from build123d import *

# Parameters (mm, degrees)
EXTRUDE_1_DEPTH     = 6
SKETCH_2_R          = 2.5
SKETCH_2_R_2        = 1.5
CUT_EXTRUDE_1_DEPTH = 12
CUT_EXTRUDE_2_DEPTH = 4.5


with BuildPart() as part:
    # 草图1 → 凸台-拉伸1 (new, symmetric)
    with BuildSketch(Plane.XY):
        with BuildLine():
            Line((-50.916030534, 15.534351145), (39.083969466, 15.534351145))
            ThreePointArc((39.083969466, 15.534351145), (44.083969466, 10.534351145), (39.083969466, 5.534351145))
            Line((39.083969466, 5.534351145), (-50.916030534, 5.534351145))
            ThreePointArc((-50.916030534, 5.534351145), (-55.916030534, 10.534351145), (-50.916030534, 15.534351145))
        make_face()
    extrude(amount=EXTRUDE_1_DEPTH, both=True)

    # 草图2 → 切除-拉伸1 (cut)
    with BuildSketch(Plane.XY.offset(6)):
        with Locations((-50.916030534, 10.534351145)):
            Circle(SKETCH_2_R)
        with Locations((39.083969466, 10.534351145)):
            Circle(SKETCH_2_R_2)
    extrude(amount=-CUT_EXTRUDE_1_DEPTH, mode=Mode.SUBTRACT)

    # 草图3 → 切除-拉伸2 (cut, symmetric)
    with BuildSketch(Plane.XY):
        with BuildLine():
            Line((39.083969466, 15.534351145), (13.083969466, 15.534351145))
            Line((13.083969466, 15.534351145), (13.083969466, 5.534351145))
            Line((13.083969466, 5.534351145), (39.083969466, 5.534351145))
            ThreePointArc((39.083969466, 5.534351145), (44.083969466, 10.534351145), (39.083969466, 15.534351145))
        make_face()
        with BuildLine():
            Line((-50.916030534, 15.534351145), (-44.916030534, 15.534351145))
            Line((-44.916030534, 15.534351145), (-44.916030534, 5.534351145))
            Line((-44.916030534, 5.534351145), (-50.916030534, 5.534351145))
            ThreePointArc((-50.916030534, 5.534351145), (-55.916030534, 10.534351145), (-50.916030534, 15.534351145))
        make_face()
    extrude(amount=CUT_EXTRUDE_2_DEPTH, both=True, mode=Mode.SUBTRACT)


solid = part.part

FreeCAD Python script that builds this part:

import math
import FreeCAD as App
import Part
import Sketcher
Q = App.Units.Quantity

doc = App.newDocument("Part")
body = doc.addObject("PartDesign::Body", "Body")

# Sketch on XY plane
sketch1 = body.newObject("Sketcher::SketchObject", "Sketch")
sketch1.AttachmentSupport = (doc.getObject("XY_Plane"), [""])
sketch1.MapMode = "FlatFace"
sketch1.addGeometry([
    Part.LineSegment(App.Vector(39, 16, 0), App.Vector(-51, 16, 0)),
    Part.ArcOfCircle(Part.Circle(App.Vector(-51, 11, 0), App.Vector(0, 0, 1), 5), math.radians(90), math.radians(270)),
    Part.LineSegment(App.Vector(-51, 6, 0), App.Vector(39, 6, 0)),
    Part.ArcOfCircle(Part.Circle(App.Vector(39, 11, 0), App.Vector(0, 0, 1), 5), math.radians(-90), math.radians(90)),
], False)
sketch1.addConstraint([
    Sketcher.Constraint("Tangent", 0, 2, 1, 1),
    Sketcher.Constraint("Tangent", 1, 2, 2, 1),
    Sketcher.Constraint("Tangent", 2, 2, 3, 1),
    Sketcher.Constraint("Tangent", 3, 2, 0, 1),
    Sketcher.Constraint("Horizontal", 0),
    Sketcher.Constraint("Horizontal", 2),
    Sketcher.Constraint("Radius", 1, Q("5 mm")),
    Sketcher.Constraint("DistanceX", 0, 2, 0, 1, Q("90 mm")),
    Sketcher.Constraint("DistanceX", 1, 3, -1, 1, Q("50.916031 mm")),
    Sketcher.Constraint("DistanceY", -1, 1, 1, 3, Q("10.534351 mm")),
])
pad1 = body.newObject("PartDesign::Pad", "Pad")
pad1.Profile = sketch1
pad1.Length = 12
pad1.Midplane = True

# Sketch on XY plane
sketch2 = body.newObject("Sketcher::SketchObject", "Sketch001")
sketch2.AttachmentSupport = (doc.getObject("XY_Plane"), [""])
sketch2.MapMode = "FlatFace"
sketch2.AttachmentOffset = App.Placement(App.Vector(0, 0, 6), App.Rotation())
sketch2.addGeometry([
    Part.Circle(App.Vector(-50.9, 10.5, 0), App.Vector(0, 0, 1), 2.5),
    Part.Circle(App.Vector(39.1, 10.5, 0), App.Vector(0, 0, 1), 1.5),
], False)
sketch2.addConstraint([
    Sketcher.Constraint("Horizontal", 0, 3, 1, 3),
    Sketcher.Constraint("Diameter", 0, Q("5 mm")),
    Sketcher.Constraint("Diameter", 1, Q("3 mm")),
    Sketcher.Constraint("DistanceX", 0, 3, 1, 3, Q("90 mm")),
    Sketcher.Constraint("DistanceX", 0, 3, -1, 1, Q("50.916031 mm")),
    Sketcher.Constraint("DistanceY", -1, 1, 0, 3, Q("10.534351 mm")),
])
pocket1 = body.newObject("PartDesign::Pocket", "Pocket")
pocket1.Profile = sketch2
pocket1.Length = 12

# Sketch on XY plane
sketch3 = body.newObject("Sketcher::SketchObject", "Sketch002")
sketch3.AttachmentSupport = (doc.getObject("XY_Plane"), [""])
sketch3.MapMode = "FlatFace"
sketch3.addGeometry([
    Part.LineSegment(App.Vector(39, 16, 0), App.Vector(13, 16, 0)),  # 0
    Part.LineSegment(App.Vector(13, 16, 0), App.Vector(13, 6, 0)),  # 1
    Part.LineSegment(App.Vector(13, 6, 0), App.Vector(39, 6, 0)),  # 2
    Part.ArcOfCircle(Part.Circle(App.Vector(39, 11, 0), App.Vector(0, 0, 1), 5), math.radians(-90), math.radians(90)),  # 3
    Part.LineSegment(App.Vector(-45, 16, 0), App.Vector(-51, 16, 0)),  # 4
    Part.ArcOfCircle(Part.Circle(App.Vector(-51, 11, 0), App.Vector(0, 0, 1), 5), math.radians(90), math.radians(270)),  # 5
    Part.LineSegment(App.Vector(-51, 6, 0), App.Vector(-45, 6, 0)),  # 6
    Part.LineSegment(App.Vector(-45, 6, 0), App.Vector(-45, 16, 0)),  # 7
], False)
sketch3.addConstraint([
    Sketcher.Constraint("Coincident", 0, 2, 1, 1),
    Sketcher.Constraint("Coincident", 1, 2, 2, 1),
    Sketcher.Constraint("Tangent", 2, 2, 3, 1),
    Sketcher.Constraint("Tangent", 3, 2, 0, 1),
    Sketcher.Constraint("Tangent", 4, 2, 5, 1),
    Sketcher.Constraint("Tangent", 5, 2, 6, 1),
    Sketcher.Constraint("Coincident", 6, 2, 7, 1),
    Sketcher.Constraint("Coincident", 7, 2, 4, 1),
    Sketcher.Constraint("Horizontal", 0),
    Sketcher.Constraint("Vertical", 1),
    Sketcher.Constraint("Horizontal", 2),
    Sketcher.Constraint("Horizontal", 4),
    Sketcher.Constraint("Horizontal", 6),
    Sketcher.Constraint("Vertical", 7),
    Sketcher.Constraint("Equal", 3, 5),
    Sketcher.Constraint("Horizontal", 3, 3, 5, 3),
    Sketcher.Constraint("Radius", 3, Q("5 mm")),
    Sketcher.Constraint("DistanceX", 0, 2, 0, 1, Q("26 mm")),
    Sketcher.Constraint("DistanceX", 4, 2, 4, 1, Q("6 mm")),
    Sketcher.Constraint("DistanceX", 5, 3, 3, 3, Q("90 mm")),
    Sketcher.Constraint("DistanceX", -1, 1, 3, 3, Q("39.083969 mm")),
    Sketcher.Constraint("DistanceY", -1, 1, 3, 3, Q("10.534351 mm")),
])
pocket2 = body.newObject("PartDesign::Pocket", "Pocket001")
pocket2.Profile = sketch3
pocket2.Length = 9
pocket2.Midplane = True

doc.recompute()
